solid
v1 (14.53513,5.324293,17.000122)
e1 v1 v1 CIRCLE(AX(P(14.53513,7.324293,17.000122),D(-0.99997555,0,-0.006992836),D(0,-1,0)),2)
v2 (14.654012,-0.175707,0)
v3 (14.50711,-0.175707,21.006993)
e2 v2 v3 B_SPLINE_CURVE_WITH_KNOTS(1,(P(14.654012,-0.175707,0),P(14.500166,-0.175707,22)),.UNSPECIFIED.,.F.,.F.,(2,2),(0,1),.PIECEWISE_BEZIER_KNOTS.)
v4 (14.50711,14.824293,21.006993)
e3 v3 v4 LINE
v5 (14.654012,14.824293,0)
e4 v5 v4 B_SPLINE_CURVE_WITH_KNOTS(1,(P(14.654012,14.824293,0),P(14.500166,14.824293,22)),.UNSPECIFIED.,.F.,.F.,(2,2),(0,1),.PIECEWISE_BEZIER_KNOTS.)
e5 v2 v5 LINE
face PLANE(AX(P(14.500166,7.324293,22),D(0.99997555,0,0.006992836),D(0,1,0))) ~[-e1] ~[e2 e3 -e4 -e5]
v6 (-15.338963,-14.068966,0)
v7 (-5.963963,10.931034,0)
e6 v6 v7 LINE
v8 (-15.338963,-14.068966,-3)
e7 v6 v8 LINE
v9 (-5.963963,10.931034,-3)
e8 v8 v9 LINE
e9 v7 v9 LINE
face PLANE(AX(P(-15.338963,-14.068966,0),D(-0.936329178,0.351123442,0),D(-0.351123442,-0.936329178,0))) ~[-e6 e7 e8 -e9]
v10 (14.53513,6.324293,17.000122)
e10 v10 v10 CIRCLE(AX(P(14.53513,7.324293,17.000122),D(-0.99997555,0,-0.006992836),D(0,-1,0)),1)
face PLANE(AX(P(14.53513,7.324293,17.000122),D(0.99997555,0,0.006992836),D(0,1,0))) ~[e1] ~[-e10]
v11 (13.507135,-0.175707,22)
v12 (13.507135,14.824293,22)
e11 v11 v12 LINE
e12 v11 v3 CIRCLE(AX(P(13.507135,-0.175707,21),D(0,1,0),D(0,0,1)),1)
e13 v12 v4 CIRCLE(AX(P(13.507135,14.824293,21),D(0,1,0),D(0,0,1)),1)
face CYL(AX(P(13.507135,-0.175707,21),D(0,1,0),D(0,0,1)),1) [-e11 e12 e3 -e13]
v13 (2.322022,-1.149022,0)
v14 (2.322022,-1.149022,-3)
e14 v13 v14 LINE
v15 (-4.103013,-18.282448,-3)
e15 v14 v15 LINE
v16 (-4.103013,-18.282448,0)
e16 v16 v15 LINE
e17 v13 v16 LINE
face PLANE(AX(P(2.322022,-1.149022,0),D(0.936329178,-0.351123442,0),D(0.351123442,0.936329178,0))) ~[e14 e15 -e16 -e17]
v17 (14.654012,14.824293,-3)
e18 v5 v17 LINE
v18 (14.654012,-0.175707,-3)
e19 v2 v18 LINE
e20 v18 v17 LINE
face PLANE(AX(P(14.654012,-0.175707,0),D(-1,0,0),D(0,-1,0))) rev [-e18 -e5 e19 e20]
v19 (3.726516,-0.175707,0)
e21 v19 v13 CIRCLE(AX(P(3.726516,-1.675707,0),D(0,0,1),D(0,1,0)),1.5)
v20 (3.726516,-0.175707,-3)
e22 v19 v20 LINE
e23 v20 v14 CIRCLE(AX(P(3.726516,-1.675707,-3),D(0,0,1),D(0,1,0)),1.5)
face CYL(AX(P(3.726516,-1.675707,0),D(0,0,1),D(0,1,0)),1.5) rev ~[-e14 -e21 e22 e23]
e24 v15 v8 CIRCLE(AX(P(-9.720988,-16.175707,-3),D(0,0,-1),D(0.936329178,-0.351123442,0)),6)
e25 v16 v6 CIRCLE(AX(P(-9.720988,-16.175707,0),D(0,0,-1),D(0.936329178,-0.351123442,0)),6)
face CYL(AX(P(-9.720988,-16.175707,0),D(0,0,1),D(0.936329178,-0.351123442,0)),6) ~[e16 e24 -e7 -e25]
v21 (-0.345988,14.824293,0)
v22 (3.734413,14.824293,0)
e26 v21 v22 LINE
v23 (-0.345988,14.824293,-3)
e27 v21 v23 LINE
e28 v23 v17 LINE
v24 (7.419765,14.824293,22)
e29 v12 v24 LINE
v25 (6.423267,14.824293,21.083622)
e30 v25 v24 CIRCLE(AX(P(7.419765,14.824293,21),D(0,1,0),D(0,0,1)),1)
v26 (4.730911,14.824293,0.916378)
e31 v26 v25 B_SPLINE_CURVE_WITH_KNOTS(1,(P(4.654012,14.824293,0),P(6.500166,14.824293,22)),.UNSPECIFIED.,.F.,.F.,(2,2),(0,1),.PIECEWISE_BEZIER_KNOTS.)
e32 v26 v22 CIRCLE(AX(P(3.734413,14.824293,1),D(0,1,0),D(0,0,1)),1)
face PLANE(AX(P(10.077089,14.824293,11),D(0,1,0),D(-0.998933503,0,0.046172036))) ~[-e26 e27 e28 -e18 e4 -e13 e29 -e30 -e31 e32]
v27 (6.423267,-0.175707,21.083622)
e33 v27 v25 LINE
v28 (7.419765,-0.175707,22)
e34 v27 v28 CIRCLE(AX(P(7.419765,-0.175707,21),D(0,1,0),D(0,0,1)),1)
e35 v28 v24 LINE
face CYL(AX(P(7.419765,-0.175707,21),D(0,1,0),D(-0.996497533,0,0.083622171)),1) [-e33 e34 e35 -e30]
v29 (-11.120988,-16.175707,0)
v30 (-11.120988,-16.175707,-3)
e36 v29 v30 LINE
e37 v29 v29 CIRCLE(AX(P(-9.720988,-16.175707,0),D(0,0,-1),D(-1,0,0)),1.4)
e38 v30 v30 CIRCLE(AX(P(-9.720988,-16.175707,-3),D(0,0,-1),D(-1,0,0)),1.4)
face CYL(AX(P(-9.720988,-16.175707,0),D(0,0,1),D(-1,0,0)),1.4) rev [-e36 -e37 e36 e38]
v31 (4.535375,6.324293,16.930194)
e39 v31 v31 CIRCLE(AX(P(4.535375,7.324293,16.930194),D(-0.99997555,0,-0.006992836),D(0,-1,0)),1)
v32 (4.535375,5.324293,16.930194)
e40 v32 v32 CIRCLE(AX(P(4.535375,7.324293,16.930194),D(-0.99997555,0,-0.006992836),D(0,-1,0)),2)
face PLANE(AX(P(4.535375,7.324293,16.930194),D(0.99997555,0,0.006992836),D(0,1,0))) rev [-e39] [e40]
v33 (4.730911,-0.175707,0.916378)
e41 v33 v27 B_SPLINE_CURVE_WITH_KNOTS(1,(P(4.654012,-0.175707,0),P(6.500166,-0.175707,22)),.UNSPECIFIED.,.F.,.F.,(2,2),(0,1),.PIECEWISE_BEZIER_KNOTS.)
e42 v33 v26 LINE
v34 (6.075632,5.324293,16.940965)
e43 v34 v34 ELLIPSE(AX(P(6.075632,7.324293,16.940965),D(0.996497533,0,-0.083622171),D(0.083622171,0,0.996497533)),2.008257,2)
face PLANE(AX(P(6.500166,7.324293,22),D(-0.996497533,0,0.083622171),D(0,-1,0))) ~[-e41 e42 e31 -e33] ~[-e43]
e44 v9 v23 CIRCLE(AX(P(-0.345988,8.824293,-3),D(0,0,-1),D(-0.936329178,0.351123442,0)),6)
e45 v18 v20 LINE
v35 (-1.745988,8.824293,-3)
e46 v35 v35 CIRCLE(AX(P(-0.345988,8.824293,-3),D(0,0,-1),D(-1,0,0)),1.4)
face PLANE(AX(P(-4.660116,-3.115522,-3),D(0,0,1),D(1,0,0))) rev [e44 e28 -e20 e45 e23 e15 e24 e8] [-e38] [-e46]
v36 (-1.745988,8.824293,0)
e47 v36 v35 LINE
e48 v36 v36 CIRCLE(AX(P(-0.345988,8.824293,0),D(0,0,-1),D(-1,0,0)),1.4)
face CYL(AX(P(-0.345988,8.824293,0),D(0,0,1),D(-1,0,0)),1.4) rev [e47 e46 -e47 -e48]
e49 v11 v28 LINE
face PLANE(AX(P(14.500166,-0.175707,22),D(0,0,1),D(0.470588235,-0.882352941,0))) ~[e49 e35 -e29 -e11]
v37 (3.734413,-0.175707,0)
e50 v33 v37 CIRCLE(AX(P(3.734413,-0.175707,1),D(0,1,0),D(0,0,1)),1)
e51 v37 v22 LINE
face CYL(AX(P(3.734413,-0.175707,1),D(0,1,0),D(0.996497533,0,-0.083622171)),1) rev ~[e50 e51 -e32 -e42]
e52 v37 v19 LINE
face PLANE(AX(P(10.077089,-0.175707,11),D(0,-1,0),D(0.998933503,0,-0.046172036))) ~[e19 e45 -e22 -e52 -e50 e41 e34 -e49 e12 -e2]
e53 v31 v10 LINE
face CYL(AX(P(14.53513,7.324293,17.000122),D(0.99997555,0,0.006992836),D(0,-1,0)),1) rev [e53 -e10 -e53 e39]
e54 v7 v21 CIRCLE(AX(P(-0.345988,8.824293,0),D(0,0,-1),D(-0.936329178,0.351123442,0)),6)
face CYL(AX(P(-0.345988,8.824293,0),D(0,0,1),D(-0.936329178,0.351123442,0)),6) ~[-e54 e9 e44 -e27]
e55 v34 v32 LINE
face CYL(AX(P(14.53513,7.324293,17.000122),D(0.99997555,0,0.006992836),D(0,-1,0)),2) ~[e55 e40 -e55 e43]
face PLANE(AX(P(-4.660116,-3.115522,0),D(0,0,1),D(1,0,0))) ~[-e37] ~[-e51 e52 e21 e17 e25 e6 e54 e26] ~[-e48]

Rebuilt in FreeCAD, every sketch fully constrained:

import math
import FreeCAD as App
import Part
import Sketcher
Q = App.Units.Quantity


def edges_at(feature, points):
    """Names of the edges that pass closest to the given points."""
    edges = feature.Shape.Edges
    near = lambda p: min(range(len(edges)), key=lambda i: edges[i].distToShape(Part.Vertex(*p))[0])
    return sorted({f"Edge{near(p) + 1}" for p in points})

doc = App.newDocument("Part")
params = doc.addObject("Spreadsheet::Sheet", "Params")
for row, (alias, value) in enumerate([
    ("sketch1_radius", "6 mm"),
    ("sketch1_diameter", "2.8 mm"),
    ("sketch1_radius2", "1.5 mm"),
    ("sketch1_width", "15 mm"),
    ("pad1_length", "3 mm"),
    ("sketch2_width", "10 mm"),
    ("sketch2_height", "15 mm"),
    ("sketch3_width", "8 mm"),
    ("sketch3_height", "15 mm"),
    ("sketch4_diameter", "4 mm"),
    ("sketch4_diameter2", "2 mm"),
    ("pad2_length", "10 mm"),
    ("sketch5_diameter", "2 mm"),
    ("pocket1_length", "15 mm"),
    ("fillet_radius", "1 mm"),
], start=1):
    params.set(f"A{row}", alias)
    params.set(f"B{row}", "=" + value)
    params.setAlias(f"B{row}", alias)

body = doc.addObject("PartDesign::Body", "Body")

sketch1 = body.newObject("Sketcher::SketchObject", "Sketch")
sketch1.AttachmentSupport = (doc.getObject("XY_Plane"), [""])
sketch1.MapMode = "FlatFace"
sketch1.addGeometry([
    Part.LineSegment(App.Vector(-2.3, -1.1, 0), App.Vector(4.1, -18.3, 0)),
    Part.ArcOfCircle(Part.Circle(App.Vector(9.7, -16.2, 0), App.Vector(0, 0, 1), 6), math.radians(-159), math.radians(21)),
    Part.LineSegment(App.Vector(15.3, -14.1, 0), App.Vector(6, 10.9, 0)),
    Part.ArcOfCircle(Part.Circle(App.Vector(0.3, 8.8, 0), App.Vector(0, 0, 1), 6), math.radians(21), math.radians(90)),
    Part.LineSegment(App.Vector(0.3, 14.8, 0), App.Vector(-14.7, 14.8, 0)),
    Part.LineSegment(App.Vector(-14.7, 14.8, 0), App.Vector(-14.7, -0.2, 0)),
    Part.LineSegment(App.Vector(-14.7, -0.2, 0), App.Vector(-3.7, -0.2, 0)),
    Part.ArcOfCircle(Part.Circle(App.Vector(-3.7, -1.7, 0), App.Vector(0, 0, 1), 1.5), math.radians(21), math.radians(90)),
    Part.Circle(App.Vector(9.7, -16.2, 0), App.Vector(0, 0, 1), 1.4),
    Part.Circle(App.Vector(0.3, 8.8, 0), App.Vector(0, 0, 1), 1.4),
], False)
sketch1.addConstraint([
    Sketcher.Constraint("Tangent", 0, 2, 1, 1),
    Sketcher.Constraint("Tangent", 1, 2, 2, 1),
    Sketcher.Constraint("Tangent", 2, 2, 3, 1),
    Sketcher.Constraint("Tangent", 3, 2, 4, 1),
    Sketcher.Constraint("Coincident", 4, 2, 5, 1),
    Sketcher.Constraint("Coincident", 5, 2, 6, 1),
    Sketcher.Constraint("Tangent", 6, 2, 7, 2),
    Sketcher.Constraint("Tangent", 7, 1, 0, 1),
    Sketcher.Constraint("Horizontal", 4),
    Sketcher.Constraint("Vertical", 5),
    Sketcher.Constraint("Horizontal", 6),
    Sketcher.Constraint("Coincident", 8, 3, 1, 3),
    Sketcher.Constraint("Coincident", 9, 3, 3, 3),
    Sketcher.Constraint("Equal", 1, 3),
    Sketcher.Constraint("Equal", 8, 9),
    Sketcher.Constraint("Parallel", 0, 2),
    Sketcher.Constraint("Equal", 4, 5),
    Sketcher.Constraint("Radius", 1, Q("6 mm")),
    Sketcher.Constraint("Diameter", 8, Q("2.8 mm")),
    Sketcher.Constraint("Radius", 7, Q("1.5 mm")),
    Sketcher.Constraint("DistanceX", 4, 2, 4, 1, Q("15 mm")),
    Sketcher.Constraint("DistanceY", 1, 3, 3, 3, Q("25 mm")),
    Sketcher.Constraint("DistanceX", 3, 3, 1, 3, Q("9.375 mm")),
    Sketcher.Constraint("DistanceX", 7, 1, -1, 1, Q("2.322022 mm")),
    Sketcher.Constraint("DistanceY", 7, 1, -1, 1, Q("1.149022 mm")),
])
sketch1.setExpression("Constraints[17]", "Params.sketch1_radius")
sketch1.setExpression("Constraints[18]", "Params.sketch1_diameter")
sketch1.setExpression("Constraints[19]", "Params.sketch1_radius2")
sketch1.setExpression("Constraints[20]", "Params.sketch1_width")
pad1 = body.newObject("PartDesign::Pad", "Pad")
pad1.Profile = sketch1
pad1.setExpression("Length", "Params.pad1_length")
pad1.Reversed = True

sketch2 = body.newObject("Sketcher::SketchObject", "Sketch001")
sketch2.AttachmentSupport = (doc.getObject("XY_Plane"), [""])
sketch2.MapMode = "FlatFace"
sketch2.addGeometry([
    Part.LineSegment(App.Vector(-15, 15, 0), App.Vector(-15, 0, 0)),
    Part.LineSegment(App.Vector(-15, 0, 0), App.Vector(-5, 0, 0)),
    Part.LineSegment(App.Vector(-5, 0, 0), App.Vector(-5, 15, 0)),
    Part.LineSegment(App.Vector(-5, 15, 0), App.Vector(-15, 15, 0)),
], False)
sketch2.addConstraint([
    Sketcher.Constraint("Coincident", 0, 2, 1, 1),
    Sketcher.Constraint("Coincident", 1, 2, 2, 1),
    Sketcher.Constraint("Coincident", 2, 2, 3, 1),
    Sketcher.Constraint("Coincident", 3, 2, 0, 1),
    Sketcher.Constraint("Vertical", 0),
    Sketcher.Constraint("Horizontal", 1),
    Sketcher.Constraint("Vertical", 2),
    Sketcher.Constraint("Horizontal", 3),
    Sketcher.Constraint("DistanceX", 1, 1, 1, 2, Q("10 mm")),
    Sketcher.Constraint("DistanceY", 0, 2, 0, 1, Q("15 mm")),
    Sketcher.Constraint("DistanceX", 0, 2, -1, 1, Q("14.654012 mm")),
    Sketcher.Constraint("DistanceY", 0, 2, -1, 1, Q("0.175707 mm")),
])
sketch2.setExpression("Constraints[8]", "Params.sketch2_width")
sketch2.setExpression("Constraints[9]", "Params.sketch2_height")

sketch3 = body.newObject("Sketcher::SketchObject", "Sketch002")
sketch3.AttachmentSupport = (doc.getObject("XY_Plane"), [""])
sketch3.MapMode = "FlatFace"
sketch3.AttachmentOffset = App.Placement(App.Vector(0, 0, 22), App.Rotation())
sketch3.addGeometry([
    Part.LineSegment(App.Vector(-15, 15, 0), App.Vector(-15, 0, 0)),
    Part.LineSegment(App.Vector(-15, 0, 0), App.Vector(-7, 0, 0)),
    Part.LineSegment(App.Vector(-7, 0, 0), App.Vector(-7, 15, 0)),
    Part.LineSegment(App.Vector(-7, 15, 0), App.Vector(-15, 15, 0)),
], False)
sketch3.addConstraint([
    Sketcher.Constraint("Coincident", 0, 2, 1, 1),
    Sketcher.Constraint("Coincident", 1, 2, 2, 1),
    Sketcher.Constraint("Coincident", 2, 2, 3, 1),
    Sketcher.Constraint("Coincident", 3, 2, 0, 1),
    Sketcher.Constraint("Vertical", 0),
    Sketcher.Constraint("Horizontal", 1),
    Sketcher.Constraint("Vertical", 2),
    Sketcher.Constraint("Horizontal", 3),
    Sketcher.Constraint("DistanceX", 1, 1, 1, 2, Q("8 mm")),
    Sketcher.Constraint("DistanceY", 0, 2, 0, 1, Q("15 mm")),
    Sketcher.Constraint("DistanceX", 0, 2, -1, 1, Q("14.500166 mm")),
    Sketcher.Constraint("DistanceY", 0, 2, -1, 1, Q("0.175707 mm")),
])
sketch3.setExpression("Constraints[8]", "Params.sketch3_width")
sketch3.setExpression("Constraints[9]", "Params.sketch3_height")

additiveloft = body.newObject("PartDesign::AdditiveLoft", "AdditiveLoft")
additiveloft.Profile = sketch2
additiveloft.Sections = [sketch3]

sketch4 = body.newObject("Sketcher::SketchObject", "Sketch003")
sketch4.Placement = App.Placement(App.Vector(-14.653296, 0, 0.102471), App.Rotation(App.Vector(0, -1, 0), App.Vector(0.006992836, 0, 0.99997555), App.Vector(-0.99997555, 0, 0.006992836), "ZXY"))
sketch4.addGeometry([
    Part.Circle(App.Vector(-7.3, 16.9, 0), App.Vector(0, 0, 1), 2),
    Part.Circle(App.Vector(-7.3, 16.9, 0), App.Vector(0, 0, 1), 1),
], False)
sketch4.addConstraint([
    Sketcher.Constraint("Coincident", 1, 3, 0, 3),
    Sketcher.Constraint("Diameter", 0, Q("4 mm")),
    Sketcher.Constraint("Diameter", 1, Q("2 mm")),
    Sketcher.Constraint("DistanceX", 0, 3, -1, 1, Q("7.324293 mm")),
    Sketcher.Constraint("DistanceY", -1, 1, 0, 3, Q("16.898065 mm")),
])
sketch4.setExpression("Constraints[1]", "Params.sketch4_diameter")
sketch4.setExpression("Constraints[2]", "Params.sketch4_diameter2")
pad2 = body.newObject("PartDesign::Pad", "Pad001")
pad2.Profile = sketch4
pad2.setExpression("Length", "Params.pad2_length")
pad2.Reversed = True

sketch5 = body.newObject("Sketcher::SketchObject", "Sketch004")
sketch5.Placement = App.Placement(App.Vector(-14.653296, 0, 0.102471), App.Rotation(App.Vector(0, -1, 0), App.Vector(0.006992836, 0, 0.99997555), App.Vector(-0.99997555, 0, 0.006992836), "ZXY"))
sketch5.addGeometry(Part.Circle(App.Vector(-7.3, 16.9, 0), App.Vector(0, 0, 1), 1), False)
sketch5.addConstraint([
    Sketcher.Constraint("Diameter", 0, Q("2 mm")),
    Sketcher.Constraint("DistanceX", 0, 3, -1, 1, Q("7.324293 mm")),
    Sketcher.Constraint("DistanceY", -1, 1, 0, 3, Q("16.898065 mm")),
])
sketch5.setExpression("Constraints[0]", "Params.sketch5_diameter")
pocket1 = body.newObject("PartDesign::Pocket", "Pocket")
pocket1.Profile = sketch5
pocket1.setExpression("Length", "Params.pocket1_length")
doc.recompute()

fillet = body.newObject("PartDesign::Fillet", "Fillet")
fillet.Base = (pocket1, edges_at(pocket1, [(-6.5, 7.324, 22), (-14.5, 7.324, 22), (-4.654, 7.324, 0)]))
fillet.setExpression("Radius", "Params.fillet_radius")
body2 = doc.addObject("PartDesign::Body", "Body001")
doc.recompute()

mirroring = doc.addObject("Part::Mirroring", "Mirroring")
mirroring.Source = body
mirroring.Base = App.Vector(0, 0, 0)
mirroring.Normal = App.Vector(1, 0, 0)
body2.BaseFeature = mirroring
doc.recompute()
body.Visibility = False
mirroring.Visibility = False

doc.recompute()
